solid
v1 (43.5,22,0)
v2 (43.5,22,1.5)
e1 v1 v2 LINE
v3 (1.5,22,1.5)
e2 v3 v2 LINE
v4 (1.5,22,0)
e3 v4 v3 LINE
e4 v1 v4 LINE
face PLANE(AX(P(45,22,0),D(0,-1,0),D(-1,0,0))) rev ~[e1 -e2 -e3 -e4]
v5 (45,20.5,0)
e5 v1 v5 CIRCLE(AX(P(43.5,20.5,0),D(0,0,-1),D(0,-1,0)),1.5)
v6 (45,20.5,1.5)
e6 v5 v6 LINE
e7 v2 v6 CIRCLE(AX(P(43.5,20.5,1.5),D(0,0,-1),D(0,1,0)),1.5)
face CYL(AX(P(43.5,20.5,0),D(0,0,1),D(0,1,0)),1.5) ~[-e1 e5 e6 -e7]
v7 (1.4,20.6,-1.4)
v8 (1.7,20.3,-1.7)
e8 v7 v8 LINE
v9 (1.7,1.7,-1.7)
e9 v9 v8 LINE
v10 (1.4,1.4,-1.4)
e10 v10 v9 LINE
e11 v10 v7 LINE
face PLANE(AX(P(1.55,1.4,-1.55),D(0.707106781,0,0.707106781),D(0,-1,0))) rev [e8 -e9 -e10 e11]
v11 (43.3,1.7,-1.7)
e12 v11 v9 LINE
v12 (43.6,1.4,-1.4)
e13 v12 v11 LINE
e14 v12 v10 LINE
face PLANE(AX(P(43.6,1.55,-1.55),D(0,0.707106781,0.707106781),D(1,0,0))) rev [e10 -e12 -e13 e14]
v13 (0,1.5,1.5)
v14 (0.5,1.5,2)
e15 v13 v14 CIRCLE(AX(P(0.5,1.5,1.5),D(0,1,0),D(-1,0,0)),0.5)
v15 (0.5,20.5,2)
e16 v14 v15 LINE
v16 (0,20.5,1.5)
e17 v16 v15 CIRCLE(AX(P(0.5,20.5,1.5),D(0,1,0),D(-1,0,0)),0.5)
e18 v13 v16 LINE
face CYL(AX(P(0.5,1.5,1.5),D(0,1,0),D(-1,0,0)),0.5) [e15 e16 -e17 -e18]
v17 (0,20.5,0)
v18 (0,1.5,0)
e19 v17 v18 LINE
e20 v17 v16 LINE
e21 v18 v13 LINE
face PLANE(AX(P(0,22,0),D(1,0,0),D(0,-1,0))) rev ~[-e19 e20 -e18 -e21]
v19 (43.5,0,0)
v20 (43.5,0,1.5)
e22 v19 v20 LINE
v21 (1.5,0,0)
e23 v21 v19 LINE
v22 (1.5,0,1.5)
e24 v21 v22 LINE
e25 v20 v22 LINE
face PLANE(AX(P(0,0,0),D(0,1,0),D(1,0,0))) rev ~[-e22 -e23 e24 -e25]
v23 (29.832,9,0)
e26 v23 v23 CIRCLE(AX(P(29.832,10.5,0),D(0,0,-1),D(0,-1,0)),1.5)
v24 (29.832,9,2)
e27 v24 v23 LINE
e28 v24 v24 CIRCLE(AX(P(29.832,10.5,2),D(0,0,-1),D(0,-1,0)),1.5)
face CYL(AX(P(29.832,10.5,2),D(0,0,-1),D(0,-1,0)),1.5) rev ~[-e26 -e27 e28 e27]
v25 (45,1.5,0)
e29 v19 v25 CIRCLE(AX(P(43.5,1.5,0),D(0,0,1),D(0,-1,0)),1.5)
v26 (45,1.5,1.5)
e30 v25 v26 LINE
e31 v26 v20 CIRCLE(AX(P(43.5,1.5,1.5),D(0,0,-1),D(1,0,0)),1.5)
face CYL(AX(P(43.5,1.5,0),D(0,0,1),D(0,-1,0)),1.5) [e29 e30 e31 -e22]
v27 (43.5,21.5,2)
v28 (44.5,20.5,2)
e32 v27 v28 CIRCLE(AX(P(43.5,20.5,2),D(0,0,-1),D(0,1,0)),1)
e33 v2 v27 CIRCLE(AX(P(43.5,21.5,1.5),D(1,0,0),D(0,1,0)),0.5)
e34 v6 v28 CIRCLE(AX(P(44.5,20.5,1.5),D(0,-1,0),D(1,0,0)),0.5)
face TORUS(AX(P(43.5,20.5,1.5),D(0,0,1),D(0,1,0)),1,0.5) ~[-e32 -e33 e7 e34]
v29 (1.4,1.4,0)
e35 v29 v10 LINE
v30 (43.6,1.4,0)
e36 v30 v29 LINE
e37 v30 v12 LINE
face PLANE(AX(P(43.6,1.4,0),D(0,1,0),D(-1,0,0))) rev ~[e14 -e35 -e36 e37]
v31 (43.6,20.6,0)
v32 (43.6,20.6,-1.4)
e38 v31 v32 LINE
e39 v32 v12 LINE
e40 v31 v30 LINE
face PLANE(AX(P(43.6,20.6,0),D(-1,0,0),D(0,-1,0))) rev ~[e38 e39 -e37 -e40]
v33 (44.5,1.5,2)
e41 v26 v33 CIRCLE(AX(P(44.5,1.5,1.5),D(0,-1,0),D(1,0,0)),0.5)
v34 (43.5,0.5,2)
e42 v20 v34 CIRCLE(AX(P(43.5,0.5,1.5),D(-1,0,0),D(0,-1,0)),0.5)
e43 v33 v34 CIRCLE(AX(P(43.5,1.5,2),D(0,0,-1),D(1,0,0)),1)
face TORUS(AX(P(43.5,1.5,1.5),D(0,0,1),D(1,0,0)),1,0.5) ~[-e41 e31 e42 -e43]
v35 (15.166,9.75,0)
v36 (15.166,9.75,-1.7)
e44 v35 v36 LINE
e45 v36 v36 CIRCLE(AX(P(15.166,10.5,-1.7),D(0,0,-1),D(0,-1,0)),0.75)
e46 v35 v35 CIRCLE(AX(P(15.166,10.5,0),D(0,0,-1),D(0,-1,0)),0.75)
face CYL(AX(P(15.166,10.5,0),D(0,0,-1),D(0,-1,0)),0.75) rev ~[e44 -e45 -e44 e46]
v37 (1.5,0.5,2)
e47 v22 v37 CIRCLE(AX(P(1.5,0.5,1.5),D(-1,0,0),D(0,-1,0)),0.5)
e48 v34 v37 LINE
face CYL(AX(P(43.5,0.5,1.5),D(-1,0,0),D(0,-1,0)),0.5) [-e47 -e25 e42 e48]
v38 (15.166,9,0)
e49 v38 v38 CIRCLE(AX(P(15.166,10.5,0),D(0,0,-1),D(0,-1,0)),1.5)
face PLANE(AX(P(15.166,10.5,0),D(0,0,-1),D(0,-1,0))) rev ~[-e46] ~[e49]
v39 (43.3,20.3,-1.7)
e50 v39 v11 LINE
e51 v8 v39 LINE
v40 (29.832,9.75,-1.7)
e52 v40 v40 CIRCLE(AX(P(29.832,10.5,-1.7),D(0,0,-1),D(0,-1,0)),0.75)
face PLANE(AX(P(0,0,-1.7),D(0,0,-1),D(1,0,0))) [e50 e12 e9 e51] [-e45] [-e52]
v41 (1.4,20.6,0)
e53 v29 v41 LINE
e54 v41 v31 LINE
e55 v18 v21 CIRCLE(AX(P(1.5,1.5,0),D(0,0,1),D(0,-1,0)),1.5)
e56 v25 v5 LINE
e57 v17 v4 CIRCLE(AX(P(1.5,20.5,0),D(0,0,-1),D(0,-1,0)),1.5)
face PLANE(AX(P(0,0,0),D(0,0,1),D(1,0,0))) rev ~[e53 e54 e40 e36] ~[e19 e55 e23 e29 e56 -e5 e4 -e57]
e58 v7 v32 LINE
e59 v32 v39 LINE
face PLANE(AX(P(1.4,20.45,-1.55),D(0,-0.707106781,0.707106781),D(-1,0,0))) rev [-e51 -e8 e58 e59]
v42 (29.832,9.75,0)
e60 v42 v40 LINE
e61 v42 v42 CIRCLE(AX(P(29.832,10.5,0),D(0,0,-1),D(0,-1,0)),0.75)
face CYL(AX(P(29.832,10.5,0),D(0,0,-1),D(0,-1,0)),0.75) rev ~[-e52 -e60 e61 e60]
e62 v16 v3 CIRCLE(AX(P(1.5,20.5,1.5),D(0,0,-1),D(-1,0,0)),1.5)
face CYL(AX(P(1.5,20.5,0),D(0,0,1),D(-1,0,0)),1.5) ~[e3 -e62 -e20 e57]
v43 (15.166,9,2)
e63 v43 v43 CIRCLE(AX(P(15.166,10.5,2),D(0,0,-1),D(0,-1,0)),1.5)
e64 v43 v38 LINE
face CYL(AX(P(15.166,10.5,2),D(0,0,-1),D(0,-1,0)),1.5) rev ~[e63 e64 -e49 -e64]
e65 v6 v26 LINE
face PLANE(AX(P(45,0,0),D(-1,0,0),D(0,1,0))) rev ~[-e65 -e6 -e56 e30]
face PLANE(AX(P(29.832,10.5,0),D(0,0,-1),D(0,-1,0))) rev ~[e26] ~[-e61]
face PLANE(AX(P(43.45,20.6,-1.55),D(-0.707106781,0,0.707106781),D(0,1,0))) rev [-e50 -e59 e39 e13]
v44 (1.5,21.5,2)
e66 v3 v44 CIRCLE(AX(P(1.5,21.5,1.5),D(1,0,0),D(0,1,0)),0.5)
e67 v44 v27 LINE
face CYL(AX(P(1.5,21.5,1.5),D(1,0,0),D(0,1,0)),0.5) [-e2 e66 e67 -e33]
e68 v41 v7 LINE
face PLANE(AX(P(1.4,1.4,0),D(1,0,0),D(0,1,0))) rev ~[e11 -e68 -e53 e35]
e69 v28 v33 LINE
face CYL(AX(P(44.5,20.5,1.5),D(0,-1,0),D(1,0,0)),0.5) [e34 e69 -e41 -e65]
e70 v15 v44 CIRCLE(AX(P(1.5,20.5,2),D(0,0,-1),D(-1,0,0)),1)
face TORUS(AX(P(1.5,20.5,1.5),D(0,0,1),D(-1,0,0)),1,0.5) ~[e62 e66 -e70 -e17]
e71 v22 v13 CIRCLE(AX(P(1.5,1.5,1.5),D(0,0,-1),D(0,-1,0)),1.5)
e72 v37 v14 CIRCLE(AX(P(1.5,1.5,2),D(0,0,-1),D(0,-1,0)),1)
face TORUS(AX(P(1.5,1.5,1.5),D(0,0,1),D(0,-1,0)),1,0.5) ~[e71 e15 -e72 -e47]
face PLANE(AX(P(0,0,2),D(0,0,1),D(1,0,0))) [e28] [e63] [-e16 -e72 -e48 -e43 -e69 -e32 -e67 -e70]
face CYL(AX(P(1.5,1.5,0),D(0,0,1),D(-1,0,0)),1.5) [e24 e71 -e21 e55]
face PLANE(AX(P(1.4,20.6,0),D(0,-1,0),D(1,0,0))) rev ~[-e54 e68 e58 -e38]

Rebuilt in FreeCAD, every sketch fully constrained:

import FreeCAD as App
import Part
import Sketcher
from FreeCAD import Vector


def edges_at(feature, points):
    """Names of the edges that pass closest to the given points."""
    edges = feature.Shape.Edges
    near = lambda p: min(range(len(edges)), key=lambda i: edges[i].distToShape(Part.Vertex(*p))[0])
    return sorted({f"Edge{near(p) + 1}" for p in points})

doc = App.newDocument("Part")
body = doc.addObject("PartDesign::Body", "Body")

# Sketch on XY plane
sketch1 = doc.addObject("Sketcher::SketchObject", "Sketch")
body.addObject(sketch1)
sketch1.AttachmentSupport = (doc.XY_Plane, [""])
sketch1.MapMode = "FlatFace"
sketch1.addGeometry([
    Part.LineSegment(Vector(0, 22, 0), Vector(0, 0, 0)),
    Part.LineSegment(Vector(0, 0, 0), Vector(45, 0, 0)),
    Part.LineSegment(Vector(45, 0, 0), Vector(45, 22, 0)),
    Part.LineSegment(Vector(45, 22, 0), Vector(0, 22, 0)),
], False)
sketch1.addConstraint([
    Sketcher.Constraint("Coincident", 0, 2, 1, 1),
    Sketcher.Constraint("Coincident", 1, 2, 2, 1),
    Sketcher.Constraint("Coincident", 2, 2, 3, 1),
    Sketcher.Constraint("Coincident", 3, 2, 0, 1),
    Sketcher.Constraint("Vertical", 0),
    Sketcher.Constraint("Horizontal", 1),
    Sketcher.Constraint("Vertical", 2),
    Sketcher.Constraint("Horizontal", 3),
    Sketcher.Constraint("Coincident", 0, 2, -1, 1),
    Sketcher.Constraint("DistanceX", 1, 1, 1, 2, 45.0),
    Sketcher.Constraint("DistanceY", 0, 2, 0, 1, 22.0),
])
pad1 = doc.addObject("PartDesign::Pad", "Pad")
body.addObject(pad1)
pad1.Profile = sketch1
pad1.Length = 2

# Sketch on XY plane
sketch2 = doc.addObject("Sketcher::SketchObject", "Sketch001")
body.addObject(sketch2)
sketch2.AttachmentSupport = (doc.XY_Plane, [""])
sketch2.MapMode = "FlatFace"
sketch2.addGeometry([
    Part.LineSegment(Vector(1.4, 1.4, 0), Vector(1.4, 20.6, 0)),
    Part.LineSegment(Vector(1.4, 20.6, 0), Vector(43.6, 20.6, 0)),
    Part.LineSegment(Vector(43.6, 20.6, 0), Vector(43.6, 1.4, 0)),
    Part.LineSegment(Vector(43.6, 1.4, 0), Vector(1.4, 1.4, 0)),
], False)
sketch2.addConstraint([
    Sketcher.Constraint("Coincident", 0, 2, 1, 1),
    Sketcher.Constraint("Coincident", 1, 2, 2, 1),
    Sketcher.Constraint("Coincident", 2, 2, 3, 1),
    Sketcher.Constraint("Coincident", 3, 2, 0, 1),
    Sketcher.Constraint("Vertical", 0),
    Sketcher.Constraint("Horizontal", 1),
    Sketcher.Constraint("Vertical", 2),
    Sketcher.Constraint("Horizontal", 3),
    Sketcher.Constraint("DistanceX", -1, 1, 0, 2, 1.4),
    Sketcher.Constraint("DistanceY", -1, 1, 2, 2, 1.4),
    Sketcher.Constraint("DistanceX", 1, 1, 1, 2, 42.2),
    Sketcher.Constraint("DistanceY", 0, 1, 0, 2, 19.2),
])
pad2 = doc.addObject("PartDesign::Pad", "Pad001")
body.addObject(pad2)
pad2.Profile = sketch2
pad2.Length = 1.7
pad2.Reversed = True
doc.recompute()

fillet = doc.addObject("PartDesign::Fillet", "Fillet")
body.addObject(fillet)
fillet.Base = (pad2, edges_at(pad2, [
    (0, 0, 1),
    (45, 0, 1),
    (45, 22, 1),
    (0, 22, 1),
]))
fillet.Radius = 1.5
doc.recompute()

chamfer = doc.addObject("PartDesign::Chamfer", "Chamfer")
body.addObject(chamfer)
chamfer.Base = (fillet, edges_at(fillet, [
    (22.5, 20.6, -1.7),
    (1.4, 11, -1.7),
    (22.5, 1.4, -1.7),
    (43.6, 11, -1.7),
]))
chamfer.Size = 0.3
doc.recompute()

fillet2 = doc.addObject("PartDesign::Fillet", "Fillet001")
body.addObject(fillet2)
fillet2.Base = (chamfer, edges_at(chamfer, [
    (0.439, 21.561, 2),
    (0, 11, 2),
    (0.439, 0.439, 2),
    (22.5, 0, 2),
    (44.561, 0.439, 2),
    (45, 11, 2),
    (44.561, 21.561, 2),
    (22.5, 22, 2),
]))
fillet2.Radius = 0.5

# Sketch on XY plane
sketch3 = doc.addObject("Sketcher::SketchObject", "Sketch002")
body.addObject(sketch3)
sketch3.AttachmentSupport = (doc.XY_Plane, [""])
sketch3.MapMode = "FlatFace"
sketch3.AttachmentOffset = App.Placement(Vector(0, 0, 2), App.Rotation())
sketch3.addGeometry(Part.Circle(Vector(15.166, 10.5, 0), Vector(0, 0, 1), 0.75), False)
sketch3.addConstraint([
    Sketcher.Constraint("Diameter", 0, 1.5),
    Sketcher.Constraint("DistanceY", -1, 1, 0, 3, 10.5),
    Sketcher.Constraint("DistanceX", -1, 1, 0, 3, 15.166),
])
doc.recompute()
hole = doc.addObject("PartDesign::Hole", "Hole")
body.addObject(hole)
hole.Profile = sketch3
hole.ThreadType = "None"
hole.Diameter = 1.5
hole.DepthType = "Dimension"
hole.Depth = 9
hole.DrillPoint = "Flat"
hole.HoleCutType = "Counterbore"
hole.HoleCutDiameter = 3
hole.HoleCutDepth = 2
doc.recompute()

linearpattern = doc.addObject("PartDesign::LinearPattern", "LinearPattern")
body.addObject(linearpattern)
linearpattern.Originals = [hole]
linearpattern.Direction = (doc.X_Axis, [""])
linearpattern.Mode = "offset"
linearpattern.Offset = 14.666
linearpattern.Occurrences = 2
body.Tip = linearpattern

doc.recompute()
